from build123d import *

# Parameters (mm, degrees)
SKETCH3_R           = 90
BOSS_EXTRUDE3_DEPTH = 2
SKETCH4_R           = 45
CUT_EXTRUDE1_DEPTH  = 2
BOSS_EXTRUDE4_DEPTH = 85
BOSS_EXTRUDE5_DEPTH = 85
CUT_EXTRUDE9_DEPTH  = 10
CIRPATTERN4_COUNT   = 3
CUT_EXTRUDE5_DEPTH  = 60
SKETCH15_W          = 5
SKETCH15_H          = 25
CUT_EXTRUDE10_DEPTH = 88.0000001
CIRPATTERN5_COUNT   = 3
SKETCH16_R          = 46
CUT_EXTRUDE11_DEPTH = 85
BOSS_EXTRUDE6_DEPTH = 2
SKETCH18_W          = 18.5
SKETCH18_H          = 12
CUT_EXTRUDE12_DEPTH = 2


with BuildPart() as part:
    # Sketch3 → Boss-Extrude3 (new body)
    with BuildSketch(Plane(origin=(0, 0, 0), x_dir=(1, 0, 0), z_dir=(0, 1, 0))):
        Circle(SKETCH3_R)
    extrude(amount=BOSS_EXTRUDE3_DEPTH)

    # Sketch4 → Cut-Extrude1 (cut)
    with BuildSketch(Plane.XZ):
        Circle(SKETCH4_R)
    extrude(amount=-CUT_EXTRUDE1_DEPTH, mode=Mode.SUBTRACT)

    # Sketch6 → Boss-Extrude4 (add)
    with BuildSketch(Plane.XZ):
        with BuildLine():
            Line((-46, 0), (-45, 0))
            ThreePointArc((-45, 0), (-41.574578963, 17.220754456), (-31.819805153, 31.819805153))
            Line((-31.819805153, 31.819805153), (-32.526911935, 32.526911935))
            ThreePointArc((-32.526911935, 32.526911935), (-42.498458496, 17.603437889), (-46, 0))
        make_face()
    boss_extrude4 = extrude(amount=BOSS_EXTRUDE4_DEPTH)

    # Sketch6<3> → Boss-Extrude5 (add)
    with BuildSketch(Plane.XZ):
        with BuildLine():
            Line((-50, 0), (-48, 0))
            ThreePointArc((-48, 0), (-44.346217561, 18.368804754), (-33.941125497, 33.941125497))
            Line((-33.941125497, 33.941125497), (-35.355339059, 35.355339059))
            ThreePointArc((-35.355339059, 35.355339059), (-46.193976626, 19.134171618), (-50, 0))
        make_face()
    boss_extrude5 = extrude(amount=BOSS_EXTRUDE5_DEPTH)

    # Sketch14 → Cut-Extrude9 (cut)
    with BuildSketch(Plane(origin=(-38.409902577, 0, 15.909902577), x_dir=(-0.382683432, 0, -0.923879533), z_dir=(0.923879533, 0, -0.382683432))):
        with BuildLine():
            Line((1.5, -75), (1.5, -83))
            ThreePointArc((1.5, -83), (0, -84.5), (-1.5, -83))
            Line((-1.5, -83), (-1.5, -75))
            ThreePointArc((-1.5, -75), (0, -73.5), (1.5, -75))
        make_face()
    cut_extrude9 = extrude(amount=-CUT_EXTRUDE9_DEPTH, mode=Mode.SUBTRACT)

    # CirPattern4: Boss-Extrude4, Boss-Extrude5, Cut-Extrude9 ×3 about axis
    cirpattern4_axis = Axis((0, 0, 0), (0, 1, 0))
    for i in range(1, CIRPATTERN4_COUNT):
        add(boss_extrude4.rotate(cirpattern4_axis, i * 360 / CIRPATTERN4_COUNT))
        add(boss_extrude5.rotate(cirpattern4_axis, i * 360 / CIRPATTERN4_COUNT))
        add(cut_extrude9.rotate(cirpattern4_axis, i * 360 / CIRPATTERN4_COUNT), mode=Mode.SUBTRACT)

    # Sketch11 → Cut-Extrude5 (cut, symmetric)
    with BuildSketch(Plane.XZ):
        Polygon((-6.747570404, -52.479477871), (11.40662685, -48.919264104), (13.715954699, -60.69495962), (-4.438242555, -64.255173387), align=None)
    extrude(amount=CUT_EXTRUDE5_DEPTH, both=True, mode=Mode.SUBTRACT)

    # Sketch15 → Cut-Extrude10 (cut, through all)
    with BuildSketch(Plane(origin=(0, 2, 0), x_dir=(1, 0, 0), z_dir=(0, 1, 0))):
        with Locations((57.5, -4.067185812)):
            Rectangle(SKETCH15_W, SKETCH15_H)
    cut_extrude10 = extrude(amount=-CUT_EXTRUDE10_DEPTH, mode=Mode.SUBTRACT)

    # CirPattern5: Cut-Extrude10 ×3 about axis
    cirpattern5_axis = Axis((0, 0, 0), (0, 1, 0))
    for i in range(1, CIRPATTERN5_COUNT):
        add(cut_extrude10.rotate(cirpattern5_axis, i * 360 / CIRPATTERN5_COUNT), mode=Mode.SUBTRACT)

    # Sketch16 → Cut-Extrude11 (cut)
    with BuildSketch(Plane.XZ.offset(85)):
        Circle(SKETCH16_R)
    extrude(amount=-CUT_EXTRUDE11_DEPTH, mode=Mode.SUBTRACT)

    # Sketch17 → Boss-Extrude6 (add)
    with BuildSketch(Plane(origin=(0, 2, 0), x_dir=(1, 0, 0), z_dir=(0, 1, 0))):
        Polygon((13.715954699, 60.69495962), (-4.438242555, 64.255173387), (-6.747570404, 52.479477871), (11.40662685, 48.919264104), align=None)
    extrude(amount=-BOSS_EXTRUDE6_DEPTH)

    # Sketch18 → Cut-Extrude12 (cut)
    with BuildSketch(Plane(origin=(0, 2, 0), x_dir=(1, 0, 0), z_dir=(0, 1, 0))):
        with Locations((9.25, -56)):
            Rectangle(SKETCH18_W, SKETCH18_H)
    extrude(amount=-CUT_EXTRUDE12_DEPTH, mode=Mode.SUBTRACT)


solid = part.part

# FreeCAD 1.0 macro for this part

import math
import FreeCAD as App
import Part
import Sketcher

V = App.Vector
Q = App.Units.Quantity


def add_polygon(sketch, points):
    """Adds a closed chain of lines whose ends are joined by coincident constraints."""
    first, n = sketch.GeometryCount, len(points)
    for a, b in zip(points, points[1:] + points[:1]):
        sketch.addGeometry(Part.LineSegment(App.Vector(*a, 0), App.Vector(*b, 0)), False)
    for i in range(n):
        sketch.addConstraint(Sketcher.Constraint("Coincident", first + i, 2, first + (i + 1) % n, 1))

doc = App.newDocument("Part")
body = doc.addObject("PartDesign::Body", "Body")

# Sketch on XZ plane
sketch1 = doc.addObject("Sketcher::SketchObject", "Sketch")
body.addObject(sketch1)
sketch1.AttachmentSupport = (doc.XZ_Plane, [""])
sketch1.MapMode = "FlatFace"
sketch1.addGeometry(Part.Circle(V(0, 0, 0), V(0, 0, 1), 90), False)
sketch1.addConstraint(Sketcher.Constraint("Coincident", 0, 3, -1, 1))
sketch1.addConstraint(Sketcher.Constraint("Diameter", 0, Q("180 mm")))
pad1 = doc.addObject("PartDesign::Pad", "Pad")
body.addObject(pad1)
pad1.Profile = sketch1
pad1.Length = 2
pad1.Reversed = True

# Sketch on XZ plane
sketch2 = doc.addObject("Sketcher::SketchObject", "Sketch001")
body.addObject(sketch2)
sketch2.AttachmentSupport = (doc.XZ_Plane, [""])
sketch2.MapMode = "FlatFace"
sketch2.addGeometry(Part.Circle(V(0, 0, 0), V(0, 0, 1), 45), False)
sketch2.addConstraint(Sketcher.Constraint("Coincident", 0, 3, -1, 1))
sketch2.addConstraint(Sketcher.Constraint("Diameter", 0, Q("90 mm")))
pocket1 = doc.addObject("PartDesign::Pocket", "Pocket")
body.addObject(pocket1)
pocket1.Profile = sketch2
pocket1.Length = 2

# Sketch on XZ plane
sketch3 = doc.addObject("Sketcher::SketchObject", "Sketch002")
body.addObject(sketch3)
sketch3.AttachmentSupport = (doc.XZ_Plane, [""])
sketch3.MapMode = "FlatFace"
sketch3.addGeometry(Part.LineSegment(V(-46, 0, 0), V(-45, 0, 0)), False)
sketch3.addGeometry(Part.ArcOfCircle(Part.Circle(V(0, 0, 0), V(0, 0, 1), 45), math.radians(135), math.radians(180)), False)
sketch3.addGeometry(Part.LineSegment(V(-31.8, 31.8, 0), V(-32.5, 32.5, 0)), False)
sketch3.addGeometry(Part.ArcOfCircle(Part.Circle(V(0, 0, 0), V(0, 0, 1), 46), math.radians(135), math.radians(180)), False)
sketch3.addConstraint(Sketcher.Constraint("Coincident", 0, 2, 1, 2))
sketch3.addConstraint(Sketcher.Constraint("Coincident", 1, 1, 2, 1))
sketch3.addConstraint(Sketcher.Constraint("Coincident", 2, 2, 3, 1))
sketch3.addConstraint(Sketcher.Constraint("Coincident", 3, 2, 0, 1))
sketch3.addConstraint(Sketcher.Constraint("Horizontal", 0))
sketch3.addConstraint(Sketcher.Constraint("Coincident", 1, 3, -1, 1))
sketch3.addConstraint(Sketcher.Constraint("Coincident", 3, 3, -1, 1))
sketch3.addConstraint(Sketcher.Constraint("PointOnObject", 0, 2, -1))
sketch3.addConstraint(Sketcher.Constraint("Radius", 1, Q("45 mm")))
sketch3.addConstraint(Sketcher.Constraint("Radius", 3, Q("46 mm")))
sketch3.addConstraint(Sketcher.Constraint("Angle", 2, Q("135 deg")))
sketch3.addConstraint(Sketcher.Constraint("DistanceX", 2, 2, -1, 1, Q("32.526912 mm")))
pad2 = doc.addObject("PartDesign::Pad", "Pad001")
body.addObject(pad2)
pad2.Profile = sketch3
pad2.Length = 85

# Sketch on XZ plane
sketch4 = doc.addObject("Sketcher::SketchObject", "Sketch003")
body.addObject(sketch4)
sketch4.AttachmentSupport = (doc.XZ_Plane, [""])
sketch4.MapMode = "FlatFace"
sketch4.addGeometry(Part.LineSegment(V(-50, 0, 0), V(-48, 0, 0)), False)
sketch4.addGeometry(Part.ArcOfCircle(Part.Circle(V(0, 0, 0), V(0, 0, 1), 48), math.radians(135), math.radians(180)), False)
sketch4.addGeometry(Part.LineSegment(V(-33.9, 33.9, 0), V(-35.4, 35.4, 0)), False)
sketch4.addGeometry(Part.ArcOfCircle(Part.Circle(V(0, 0, 0), V(0, 0, 1), 50), math.radians(135), math.radians(180)), False)
sketch4.addConstraint(Sketcher.Constraint("Coincident", 0, 2, 1, 2))
sketch4.addConstraint(Sketcher.Constraint("Coincident", 1, 1, 2, 1))
sketch4.addConstraint(Sketcher.Constraint("Coincident", 2, 2, 3, 1))
sketch4.addConstraint(Sketcher.Constraint("Coincident", 3, 2, 0, 1))
sketch4.addConstraint(Sketcher.Constraint("Horizontal", 0))
sketch4.addConstraint(Sketcher.Constraint("Coincident", 1, 3, -1, 1))
sketch4.addConstraint(Sketcher.Constraint("Coincident", 3, 3, -1, 1))
sketch4.addConstraint(Sketcher.Constraint("PointOnObject", 0, 2, -1))
sketch4.addConstraint(Sketcher.Constraint("Radius", 1, Q("48 mm")))
sketch4.addConstraint(Sketcher.Constraint("Radius", 3, Q("50 mm")))
sketch4.addConstraint(Sketcher.Constraint("Angle", 2, Q("135 deg")))
sketch4.addConstraint(Sketcher.Constraint("DistanceX", 2, 2, -1, 1, Q("35.355339 mm")))
pad3 = doc.addObject("PartDesign::Pad", "Pad002")
body.addObject(pad3)
pad3.Profile = sketch4
pad3.Length = 85

# Sketch on an angled plane
sketch5 = doc.addObject("Sketcher::SketchObject", "Sketch004")
body.addObject(sketch5)
sketch5.Placement = App.Placement(V(-38.409903, 0, 15.909903), App.Rotation(V(-0.382683432, 0, -0.923879533), V(0, 1.000000001, 0), V(0.923879533, 0, -0.382683432), "ZXY"))
sketch5.addGeometry(Part.LineSegment(V(1.5, -83, 0), V(1.5, -75, 0)), False)
sketch5.addGeometry(Part.ArcOfCircle(Part.Circle(V(0, -75, 0), V(0, 0, 1), 1.5), math.radians(0), math.radians(180)), False)
sketch5.addGeometry(Part.LineSegment(V(-1.5, -75, 0), V(-1.5, -83, 0)), False)
sketch5.addGeometry(Part.ArcOfCircle(Part.Circle(V(0, -83, 0), V(0, 0, 1), 1.5), math.radians(180), math.radians(360)), False)
sketch5.addConstraint(Sketcher.Constraint("Tangent", 0, 2, 1, 1))
sketch5.addConstraint(Sketcher.Constraint("Tangent", 1, 2, 2, 1))
sketch5.addConstraint(Sketcher.Constraint("Tangent", 2, 2, 3, 1))
sketch5.addConstraint(Sketcher.Constraint("Tangent", 3, 2, 0, 1))
sketch5.addConstraint(Sketcher.Constraint("Vertical", 0))
sketch5.addConstraint(Sketcher.Constraint("Vertical", 2))
sketch5.addConstraint(Sketcher.Constraint("PointOnObject", 1, 3, -2))
sketch5.addConstraint(Sketcher.Constraint("Radius", 1, Q("1.5 mm")))
sketch5.addConstraint(Sketcher.Constraint("DistanceY", 0, 1, 0, 2, Q("8 mm")))
sketch5.addConstraint(Sketcher.Constraint("DistanceY", 1, 3, -1, 1, Q("75 mm")))
pocket2 = doc.addObject("PartDesign::Pocket", "Pocket001")
body.addObject(pocket2)
pocket2.Profile = sketch5
pocket2.Length = 10
doc.recompute()

polarpattern = doc.addObject("PartDesign::PolarPattern", "PolarPattern")
body.addObject(polarpattern)
polarpattern.Originals = [pad2, pad3, pocket2]
polarpattern.Axis = (doc.Y_Axis, [""])
polarpattern.Angle = 360
polarpattern.Occurrences = 3
body.Tip = polarpattern

# Sketch on XZ plane
sketch6 = doc.addObject("Sketcher::SketchObject", "Sketch005")
body.addObject(sketch6)
sketch6.AttachmentSupport = (doc.XZ_Plane, [""])
sketch6.MapMode = "FlatFace"
add_polygon(sketch6, [(11, -49), (-7, -52), (-4, -64), (14, -61)])  # lines 0-3
sketch6.addConstraint(Sketcher.Constraint("Perpendicular", 0, 1))
sketch6.addConstraint(Sketcher.Constraint("Perpendicular", 1, 2))
sketch6.addConstraint(Sketcher.Constraint("Perpendicular", 2, 3))
sketch6.addConstraint(Sketcher.Constraint("Distance", 1, Q("12 mm")))
sketch6.addConstraint(Sketcher.Constraint("Distance", 0, Q("18.5 mm")))
sketch6.addConstraint(Sketcher.Constraint("DistanceX", 0, 2, -1, 1, Q("6.74757 mm")))
sketch6.addConstraint(Sketcher.Constraint("DistanceY", 2, 2, -1, 1, Q("60.69496 mm")))
sketch6.addConstraint(Sketcher.Constraint("DistanceY", 2, 2, 0, 2, Q("8.215482 mm")))
pocket3 = doc.addObject("PartDesign::Pocket", "Pocket002")
body.addObject(pocket3)
pocket3.Profile = sketch6
pocket3.Length = 120
pocket3.Midplane = True

# Sketch on XZ plane
sketch7 = doc.addObject("Sketcher::SketchObject", "Sketch006")
body.addObject(sketch7)
sketch7.AttachmentSupport = (doc.XZ_Plane, [""])
sketch7.MapMode = "FlatFace"
sketch7.AttachmentOffset = App.Placement(V(0, 0, -2), App.Rotation())
add_polygon(sketch7, [(55, -8), (55, 17), (60, 17), (60, -8)])  # lines 0-3
sketch7.addConstraint(Sketcher.Constraint("Vertical", 0))
sketch7.addConstraint(Sketcher.Constraint("Horizontal", 1))
sketch7.addConstraint(Sketcher.Constraint("Vertical", 2))
sketch7.addConstraint(Sketcher.Constraint("Horizontal", 3))
sketch7.addConstraint(Sketcher.Constraint("DistanceX", 1, 1, 1, 2, Q("5 mm")))
sketch7.addConstraint(Sketcher.Constraint("DistanceY", 0, 1, 0, 2, Q("25 mm")))
sketch7.addConstraint(Sketcher.Constraint("DistanceX", -1, 1, 0, 2, Q("55 mm")))
sketch7.addConstraint(Sketcher.Constraint("DistanceY", -1, 1, 0, 2, Q("16.567186 mm")))
pocket4 = doc.addObject("PartDesign::Pocket", "Pocket003")
body.addObject(pocket4)
pocket4.Profile = sketch7
pocket4.Type = "ThroughAll"
pocket4.Reversed = True
doc.recompute()

polarpattern2 = doc.addObject("PartDesign::PolarPattern", "PolarPattern001")
body.addObject(polarpattern2)
polarpattern2.Originals = [pocket4]
polarpattern2.Axis = (doc.Y_Axis, [""])
polarpattern2.Angle = 360
polarpattern2.Occurrences = 3
body.Tip = polarpattern2

# Sketch on XZ plane
sketch8 = doc.addObject("Sketcher::SketchObject", "Sketch007")
body.addObject(sketch8)
sketch8.AttachmentSupport = (doc.XZ_Plane, [""])
sketch8.MapMode = "FlatFace"
sketch8.AttachmentOffset = App.Placement(V(0, 0, 85), App.Rotation())
sketch8.addGeometry(Part.Circle(V(0, 0, 0), V(0, 0, 1), 46), False)
sketch8.addConstraint(Sketcher.Constraint("Coincident", 0, 3, -1, 1))
sketch8.addConstraint(Sketcher.Constraint("Diameter", 0, Q("92 mm")))
pocket5 = doc.addObject("PartDesign::Pocket", "Pocket004")
body.addObject(pocket5)
pocket5.Profile = sketch8
pocket5.Length = 85

# Sketch on XZ plane
sketch9 = doc.addObject("Sketcher::SketchObject", "Sketch008")
body.addObject(sketch9)
sketch9.AttachmentSupport = (doc.XZ_Plane, [""])
sketch9.MapMode = "FlatFace"
sketch9.AttachmentOffset = App.Placement(V(0, 0, -2), App.Rotation())
add_polygon(sketch9, [(14, -61), (-4, -64), (-7, -52), (11, -49)])  # lines 0-3
sketch9.addConstraint(Sketcher.Constraint("Perpendicular", 0, 1))
sketch9.addConstraint(Sketcher.Constraint("Perpendicular", 1, 2))
sketch9.addConstraint(Sketcher.Constraint("Perpendicular", 2, 3))
sketch9.addConstraint(Sketcher.Constraint("Distance", 1, Q("12 mm")))
sketch9.addConstraint(Sketcher.Constraint("Distance", 0, Q("18.5 mm")))
sketch9.addConstraint(Sketcher.Constraint("DistanceX", 1, 2, -1, 1, Q("6.74757 mm")))
sketch9.addConstraint(Sketcher.Constraint("DistanceY", 3, 2, -1, 1, Q("60.69496 mm")))
sketch9.addConstraint(Sketcher.Constraint("DistanceX", 0, 2, 2, 2, Q("15.844869 mm")))
pad4 = doc.addObject("PartDesign::Pad", "Pad003")
body.addObject(pad4)
pad4.Profile = sketch9
pad4.Length = 2

# Sketch on XZ plane
sketch10 = doc.addObject("Sketcher::SketchObject", "Sketch009")
body.addObject(sketch10)
sketch10.AttachmentSupport = (doc.XZ_Plane, [""])
sketch10.MapMode = "FlatFace"
sketch10.AttachmentOffset = App.Placement(V(0, 0, -2), App.Rotation())
add_polygon(sketch10, [(0, 50), (0, 62), (18, 62), (18, 50)])  # lines 0-3
sketch10.addConstraint(Sketcher.Constraint("Vertical", 0))
sketch10.addConstraint(Sketcher.Constraint("Horizontal", 1))
sketch10.addConstraint(Sketcher.Constraint("Vertical", 2))
sketch10.addConstraint(Sketcher.Constraint("Horizontal", 3))
sketch10.addConstraint(Sketcher.Constraint("PointOnObject", 0, 2, -2))
sketch10.addConstraint(Sketcher.Constraint("DistanceY", 0, 1, 0, 2, Q("12 mm")))
sketch10.addConstraint(Sketcher.Constraint("DistanceX", 1, 1, 1, 2, Q("18.5 mm")))
sketch10.addConstraint(Sketcher.Constraint("DistanceY", -1, 1, 0, 2, Q("62 mm")))
pocket6 = doc.addObject("PartDesign::Pocket", "Pocket005")
body.addObject(pocket6)
pocket6.Profile = sketch10
pocket6.Length = 2
pocket6.Reversed = True

doc.recompute()
